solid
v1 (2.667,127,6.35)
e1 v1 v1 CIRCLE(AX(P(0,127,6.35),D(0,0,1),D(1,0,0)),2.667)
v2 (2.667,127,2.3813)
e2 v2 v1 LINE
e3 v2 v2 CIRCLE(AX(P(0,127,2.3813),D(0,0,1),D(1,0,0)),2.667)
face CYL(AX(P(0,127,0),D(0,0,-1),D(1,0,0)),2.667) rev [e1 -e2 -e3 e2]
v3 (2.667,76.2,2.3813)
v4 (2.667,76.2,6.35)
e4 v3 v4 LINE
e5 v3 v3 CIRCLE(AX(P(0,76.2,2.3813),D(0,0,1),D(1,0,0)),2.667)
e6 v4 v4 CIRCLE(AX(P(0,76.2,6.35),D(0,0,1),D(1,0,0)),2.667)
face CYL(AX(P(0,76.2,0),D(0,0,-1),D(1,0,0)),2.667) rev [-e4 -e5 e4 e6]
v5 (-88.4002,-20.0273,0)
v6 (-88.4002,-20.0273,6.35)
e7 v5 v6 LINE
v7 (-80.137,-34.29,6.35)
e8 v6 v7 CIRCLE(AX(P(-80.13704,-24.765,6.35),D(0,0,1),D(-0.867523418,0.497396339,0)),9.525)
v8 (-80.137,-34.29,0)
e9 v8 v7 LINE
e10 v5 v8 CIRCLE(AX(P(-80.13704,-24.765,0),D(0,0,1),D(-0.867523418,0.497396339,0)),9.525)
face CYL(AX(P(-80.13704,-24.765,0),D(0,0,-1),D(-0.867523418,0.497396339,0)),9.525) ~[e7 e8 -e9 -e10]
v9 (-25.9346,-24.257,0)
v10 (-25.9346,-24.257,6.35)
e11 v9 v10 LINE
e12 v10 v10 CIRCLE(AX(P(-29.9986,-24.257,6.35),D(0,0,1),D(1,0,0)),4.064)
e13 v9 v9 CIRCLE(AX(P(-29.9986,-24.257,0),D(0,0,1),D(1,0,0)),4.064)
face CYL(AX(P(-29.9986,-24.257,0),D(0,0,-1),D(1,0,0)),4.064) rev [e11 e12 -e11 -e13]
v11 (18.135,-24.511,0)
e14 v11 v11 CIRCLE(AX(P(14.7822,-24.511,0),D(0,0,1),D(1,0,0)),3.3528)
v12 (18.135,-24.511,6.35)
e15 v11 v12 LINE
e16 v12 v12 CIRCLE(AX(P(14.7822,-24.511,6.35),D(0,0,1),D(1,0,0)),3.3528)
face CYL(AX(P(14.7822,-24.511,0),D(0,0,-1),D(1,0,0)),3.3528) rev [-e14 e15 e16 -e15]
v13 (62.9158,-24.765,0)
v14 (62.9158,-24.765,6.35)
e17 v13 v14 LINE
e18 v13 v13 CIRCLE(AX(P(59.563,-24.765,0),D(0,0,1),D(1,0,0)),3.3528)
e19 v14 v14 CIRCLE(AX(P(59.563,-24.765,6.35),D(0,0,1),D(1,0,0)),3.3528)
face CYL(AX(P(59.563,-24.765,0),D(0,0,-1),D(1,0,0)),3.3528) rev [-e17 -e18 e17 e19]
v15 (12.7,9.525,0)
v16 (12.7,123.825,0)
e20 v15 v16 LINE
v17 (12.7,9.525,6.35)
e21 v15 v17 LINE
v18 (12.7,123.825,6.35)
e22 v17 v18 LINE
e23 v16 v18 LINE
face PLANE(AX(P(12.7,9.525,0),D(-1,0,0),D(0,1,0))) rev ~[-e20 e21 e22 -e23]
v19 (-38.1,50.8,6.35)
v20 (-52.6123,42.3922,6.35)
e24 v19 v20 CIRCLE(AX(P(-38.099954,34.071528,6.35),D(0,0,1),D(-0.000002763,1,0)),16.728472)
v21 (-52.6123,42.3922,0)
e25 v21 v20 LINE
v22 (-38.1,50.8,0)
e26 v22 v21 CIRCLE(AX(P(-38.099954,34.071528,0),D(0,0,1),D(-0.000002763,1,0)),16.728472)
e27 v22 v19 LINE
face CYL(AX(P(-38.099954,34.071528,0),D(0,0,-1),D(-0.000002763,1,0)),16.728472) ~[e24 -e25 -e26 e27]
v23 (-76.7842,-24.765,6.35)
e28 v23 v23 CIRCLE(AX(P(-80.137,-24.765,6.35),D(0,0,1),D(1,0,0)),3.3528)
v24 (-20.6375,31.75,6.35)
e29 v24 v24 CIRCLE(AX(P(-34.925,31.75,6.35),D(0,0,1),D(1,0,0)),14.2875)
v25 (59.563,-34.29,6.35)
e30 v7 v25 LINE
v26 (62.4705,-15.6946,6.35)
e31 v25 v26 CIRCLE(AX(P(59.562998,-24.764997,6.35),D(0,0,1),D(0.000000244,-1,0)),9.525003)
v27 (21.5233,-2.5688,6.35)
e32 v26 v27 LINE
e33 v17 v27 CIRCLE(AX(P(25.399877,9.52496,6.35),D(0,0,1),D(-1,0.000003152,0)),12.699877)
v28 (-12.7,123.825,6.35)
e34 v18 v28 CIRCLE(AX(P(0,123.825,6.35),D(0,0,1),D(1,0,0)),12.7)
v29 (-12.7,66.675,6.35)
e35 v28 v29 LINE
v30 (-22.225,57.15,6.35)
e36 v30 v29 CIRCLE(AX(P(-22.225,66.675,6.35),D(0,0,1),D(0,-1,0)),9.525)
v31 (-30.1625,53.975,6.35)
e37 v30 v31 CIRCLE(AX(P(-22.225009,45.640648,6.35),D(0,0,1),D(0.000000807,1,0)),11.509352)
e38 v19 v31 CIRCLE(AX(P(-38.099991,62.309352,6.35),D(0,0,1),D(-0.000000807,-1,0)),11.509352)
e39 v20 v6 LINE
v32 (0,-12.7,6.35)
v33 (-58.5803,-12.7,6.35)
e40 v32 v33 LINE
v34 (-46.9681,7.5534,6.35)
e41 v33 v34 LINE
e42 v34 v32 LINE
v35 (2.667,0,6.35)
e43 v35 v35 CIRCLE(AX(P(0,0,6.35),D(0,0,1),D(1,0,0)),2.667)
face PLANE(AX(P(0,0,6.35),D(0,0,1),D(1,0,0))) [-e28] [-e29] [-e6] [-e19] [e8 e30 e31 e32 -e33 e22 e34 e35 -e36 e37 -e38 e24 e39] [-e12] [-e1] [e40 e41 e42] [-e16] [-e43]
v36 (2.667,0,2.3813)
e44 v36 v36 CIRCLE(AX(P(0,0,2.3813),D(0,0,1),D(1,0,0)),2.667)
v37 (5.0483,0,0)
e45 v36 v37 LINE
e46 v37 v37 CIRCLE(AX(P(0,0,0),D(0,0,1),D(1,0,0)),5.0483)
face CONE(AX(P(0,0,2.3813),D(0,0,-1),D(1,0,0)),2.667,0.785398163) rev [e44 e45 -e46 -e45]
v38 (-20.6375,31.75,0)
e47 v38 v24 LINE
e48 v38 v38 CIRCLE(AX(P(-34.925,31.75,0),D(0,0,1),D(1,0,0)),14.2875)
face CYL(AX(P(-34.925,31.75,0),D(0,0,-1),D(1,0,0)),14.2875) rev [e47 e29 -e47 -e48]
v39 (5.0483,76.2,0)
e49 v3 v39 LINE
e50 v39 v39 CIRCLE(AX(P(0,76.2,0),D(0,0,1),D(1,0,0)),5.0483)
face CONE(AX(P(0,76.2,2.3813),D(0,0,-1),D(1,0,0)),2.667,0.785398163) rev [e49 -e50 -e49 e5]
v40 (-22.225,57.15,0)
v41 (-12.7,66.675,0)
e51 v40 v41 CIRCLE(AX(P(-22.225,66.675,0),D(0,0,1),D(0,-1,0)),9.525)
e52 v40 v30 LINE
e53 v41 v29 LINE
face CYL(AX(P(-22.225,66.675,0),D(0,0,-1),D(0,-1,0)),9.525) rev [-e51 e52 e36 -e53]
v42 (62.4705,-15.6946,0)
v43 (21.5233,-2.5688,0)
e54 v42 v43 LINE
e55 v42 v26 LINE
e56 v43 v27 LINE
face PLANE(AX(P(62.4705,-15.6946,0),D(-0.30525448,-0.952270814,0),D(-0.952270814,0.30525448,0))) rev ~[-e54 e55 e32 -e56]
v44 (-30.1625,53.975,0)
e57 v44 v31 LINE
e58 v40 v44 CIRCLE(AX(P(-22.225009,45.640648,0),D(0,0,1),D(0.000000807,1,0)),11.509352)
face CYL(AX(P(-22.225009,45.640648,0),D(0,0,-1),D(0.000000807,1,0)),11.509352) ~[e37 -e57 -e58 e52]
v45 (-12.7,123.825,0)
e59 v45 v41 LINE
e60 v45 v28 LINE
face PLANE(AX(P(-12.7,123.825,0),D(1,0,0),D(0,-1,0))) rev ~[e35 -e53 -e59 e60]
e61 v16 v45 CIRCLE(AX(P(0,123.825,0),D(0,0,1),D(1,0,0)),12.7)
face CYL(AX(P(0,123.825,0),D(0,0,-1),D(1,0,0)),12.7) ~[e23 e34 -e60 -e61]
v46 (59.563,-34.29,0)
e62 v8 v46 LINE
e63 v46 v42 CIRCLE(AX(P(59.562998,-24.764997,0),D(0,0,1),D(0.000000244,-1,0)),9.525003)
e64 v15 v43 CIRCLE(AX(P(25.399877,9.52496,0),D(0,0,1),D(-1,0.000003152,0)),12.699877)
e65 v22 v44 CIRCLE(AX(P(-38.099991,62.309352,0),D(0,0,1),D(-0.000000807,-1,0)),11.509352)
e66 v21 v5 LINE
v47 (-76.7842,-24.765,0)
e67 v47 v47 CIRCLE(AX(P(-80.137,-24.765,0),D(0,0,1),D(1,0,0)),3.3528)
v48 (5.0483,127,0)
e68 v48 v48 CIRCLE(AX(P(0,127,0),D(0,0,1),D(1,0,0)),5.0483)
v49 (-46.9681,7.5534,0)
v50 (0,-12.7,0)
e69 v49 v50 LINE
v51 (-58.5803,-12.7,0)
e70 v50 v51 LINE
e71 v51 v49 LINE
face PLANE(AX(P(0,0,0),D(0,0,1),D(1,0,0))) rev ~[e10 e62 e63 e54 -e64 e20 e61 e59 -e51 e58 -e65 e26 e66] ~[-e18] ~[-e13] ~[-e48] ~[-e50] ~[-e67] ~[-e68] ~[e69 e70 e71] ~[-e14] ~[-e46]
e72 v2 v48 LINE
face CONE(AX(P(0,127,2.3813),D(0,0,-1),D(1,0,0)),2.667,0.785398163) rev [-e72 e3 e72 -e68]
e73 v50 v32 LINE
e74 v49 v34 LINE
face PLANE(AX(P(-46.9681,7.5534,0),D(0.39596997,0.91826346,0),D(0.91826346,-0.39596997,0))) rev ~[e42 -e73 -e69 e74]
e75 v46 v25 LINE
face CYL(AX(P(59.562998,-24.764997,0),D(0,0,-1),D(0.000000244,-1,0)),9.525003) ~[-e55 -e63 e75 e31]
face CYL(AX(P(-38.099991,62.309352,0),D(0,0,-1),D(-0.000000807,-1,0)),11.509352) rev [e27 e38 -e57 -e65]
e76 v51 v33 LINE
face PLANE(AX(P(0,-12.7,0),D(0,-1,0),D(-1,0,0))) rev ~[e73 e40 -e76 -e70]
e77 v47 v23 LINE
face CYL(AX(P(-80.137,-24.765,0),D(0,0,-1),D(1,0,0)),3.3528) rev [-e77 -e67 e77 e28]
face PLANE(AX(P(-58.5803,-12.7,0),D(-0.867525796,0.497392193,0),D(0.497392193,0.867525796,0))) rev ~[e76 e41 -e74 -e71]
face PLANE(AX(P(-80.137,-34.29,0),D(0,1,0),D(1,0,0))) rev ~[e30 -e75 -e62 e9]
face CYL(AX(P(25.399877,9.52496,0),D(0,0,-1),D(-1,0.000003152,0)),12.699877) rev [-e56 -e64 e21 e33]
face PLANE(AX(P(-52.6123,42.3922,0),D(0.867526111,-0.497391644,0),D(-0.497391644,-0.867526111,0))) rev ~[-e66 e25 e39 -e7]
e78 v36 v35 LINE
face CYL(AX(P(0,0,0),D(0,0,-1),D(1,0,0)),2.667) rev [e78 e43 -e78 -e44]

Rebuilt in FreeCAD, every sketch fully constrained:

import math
import FreeCAD as App
import Part
import Sketcher
from FreeCAD import Vector
Q = App.Units.Quantity


def edges_at(feature, points):
    """Names of the edges that pass closest to the given points."""
    edges = feature.Shape.Edges
    near = lambda p: min(range(len(edges)), key=lambda i: edges[i].distToShape(Part.Vertex(*p))[0])
    return sorted({f"Edge{near(p) + 1}" for p in points})

doc = App.newDocument("Part")
body = doc.addObject("PartDesign::Body", "Body")

sketch1 = body.newObject("Sketcher::SketchObject", "Sketch")
sketch1.AttachmentSupport = (doc.getObject("XY_Plane"), [""])
sketch1.MapMode = "FlatFace"
sketch1.addGeometry([
    Part.ArcOfCircle(Part.Circle(Vector(25.4, 9.525, 0), Vector(0, 0, 1), 12.7), math.radians(180), math.radians(252.226608)),
    Part.LineSegment(Vector(12.7, 9.525, 0), Vector(12.7, 123.825, 0)),
    Part.ArcOfCircle(Part.Circle(Vector(0, 123.825, 0), Vector(0, 0, 1), 12.7), math.radians(0), math.radians(180)),
    Part.LineSegment(Vector(-12.7, 123.825, 0), Vector(-12.7, 66.675, 0)),
    Part.ArcOfCircle(Part.Circle(Vector(-22.225, 66.675, 0), Vector(0, 0, 1), 9.525), math.radians(-90), math.radians(0)),
    Part.ArcOfCircle(Part.Circle(Vector(-22.225, 45.6406, 0), Vector(0, 0, 1), 11.5094), math.radians(90), math.radians(133.602733)),
    Part.ArcOfCircle(Part.Circle(Vector(-38.1, 62.3094, 0), Vector(0, 0, 1), 11.5094), math.radians(-90), math.radians(-46.397267)),
    Part.ArcOfCircle(Part.Circle(Vector(-38.1, 34.0717, 0), Vector(0, 0, 1), 16.7283), math.radians(90), math.radians(150.172575)),
    Part.LineSegment(Vector(-52.6123, 42.3922, 0), Vector(-88.4002, -20.0273, 0)),
    Part.ArcOfCircle(Part.Circle(Vector(-80.137, -24.765, 0), Vector(0, 0, 1), 9.525034), math.radians(150.172227), math.radians(270)),
    Part.LineSegment(Vector(-80.137, -34.29, 0), Vector(59.563, -34.29, 0)),
    Part.ArcOfCircle(Part.Circle(Vector(59.563, -24.765, 0), Vector(0, 0, 1), 9.525), math.radians(-90), math.radians(72.226843)),
    Part.LineSegment(Vector(62.4705, -15.6946, 0), Vector(21.5233, -2.5688, 0)),
    Part.Circle(Vector(-80.137, -24.765, 0), Vector(0, 0, 1), 3.3528),
    Part.Circle(Vector(-29.9986, -24.257, 0), Vector(0, 0, 1), 4.064),
    Part.LineSegment(Vector(-46.9681, 7.5534, 0), Vector(0, -12.7, 0)),
    Part.LineSegment(Vector(0, -12.7, 0), Vector(-58.5803, -12.7, 0)),
    Part.LineSegment(Vector(-58.5803, -12.7, 0), Vector(-46.9681, 7.5534, 0)),
    Part.Circle(Vector(-34.925, 31.75, 0), Vector(0, 0, 1), 14.2875),
    Part.Circle(Vector(14.7822, -24.511, 0), Vector(0, 0, 1), 3.3528),
    Part.Circle(Vector(0, 0, 0), Vector(0, 0, 1), 2.667),
    Part.Circle(Vector(59.563, -24.765, 0), Vector(0, 0, 1), 3.3528),
    Part.Circle(Vector(0, 76.2, 0), Vector(0, 0, 1), 2.667),
    Part.Circle(Vector(0, 127, 0), Vector(0, 0, 1), 2.667),
], False)
sketch1.addConstraint([
    Sketcher.Constraint("Tangent", 0, 1, 1, 1),
    Sketcher.Constraint("Tangent", 1, 2, 2, 1),
    Sketcher.Constraint("Tangent", 2, 2, 3, 1),
    Sketcher.Constraint("Tangent", 3, 2, 4, 2),
    Sketcher.Constraint("Tangent", 4, 1, 5, 1),
    Sketcher.Constraint("Tangent", 5, 2, 6, 2),
    Sketcher.Constraint("Tangent", 6, 1, 7, 1),
    Sketcher.Constraint("Tangent", 7, 2, 8, 1),
    Sketcher.Constraint("Tangent", 8, 2, 9, 1),
    Sketcher.Constraint("Tangent", 9, 2, 10, 1),
    Sketcher.Constraint("Tangent", 10, 2, 11, 1),
    Sketcher.Constraint("Tangent", 11, 2, 12, 1),
    Sketcher.Constraint("Tangent", 12, 2, 0, 2),
    Sketcher.Constraint("Coincident", 15, 2, 16, 1),
    Sketcher.Constraint("Coincident", 16, 2, 17, 1),
    Sketcher.Constraint("Coincident", 17, 2, 15, 1),
    Sketcher.Constraint("Vertical", 1),
    Sketcher.Constraint("Vertical", 3),
    Sketcher.Constraint("Horizontal", 10),
    Sketcher.Constraint("Horizontal", 16),
    Sketcher.Constraint("Coincident", 20, 3, -1, 1),
    Sketcher.Constraint("Coincident", 13, 3, 9, 3),
    Sketcher.Constraint("Coincident", 21, 3, 11, 3),
    Sketcher.Constraint("Equal", 0, 2),
    Sketcher.Constraint("Equal", 5, 6),
    Sketcher.Constraint("Equal", 4, 9),
    Sketcher.Constraint("Equal", 9, 11),
    Sketcher.Constraint("Equal", 13, 19),
    Sketcher.Constraint("Equal", 19, 21),
    Sketcher.Constraint("Equal", 20, 22),
    Sketcher.Constraint("Equal", 22, 23),
    Sketcher.Constraint("PointOnObject", 2, 3, -2),
    Sketcher.Constraint("PointOnObject", 22, 3, -2),
    Sketcher.Constraint("PointOnObject", 23, 3, -2),
    Sketcher.Constraint("PointOnObject", 15, 2, -2),
    Sketcher.Constraint("Parallel", 8, 17),
    Sketcher.Constraint("Vertical", 4, 3, 5, 3),
    Sketcher.Constraint("Vertical", 6, 3, 7, 3),
    Sketcher.Constraint("Radius", 0, Q("0.5 in")),
    Sketcher.Constraint("Diameter", 20, Q("0.21 in")),
    Sketcher.Constraint("Diameter", 18, Q("1.125 in")),
    Sketcher.Constraint("DistanceY", -1, 1, 22, 3, Q("3 in")),
    Sketcher.Constraint("DistanceY", -1, 1, 23, 3, Q("5 in")),
    Sketcher.Constraint("Radius", 4, Q("0.375 in")),
    Sketcher.Constraint("DistanceX", 6, 3, 3, 2, Q("1 in")),
    Sketcher.Constraint("DistanceY", 3, 2, 3, 1, Q("2.25 in")),
    Sketcher.Constraint("DistanceY", 15, 2, -1, 1, Q("0.5 in")),
    Sketcher.Constraint("DistanceX", 18, 3, 5, 3, Q("0.5 in")),
    Sketcher.Constraint("DistanceY", 5, 2, 4, 3, Q("0.5 in")),
    Sketcher.Constraint("Diameter", 14, Q("0.32 in")),
    Sketcher.Constraint("DistanceY", -1, 1, 4, 1, Q("2.25 in")),
    Sketcher.Constraint("DistanceY", 0, 3, 4, 3, Q("2.25 in")),
    Sketcher.Constraint("DistanceY", 18, 3, 22, 3, Q("1.75 in")),
    Sketcher.Constraint("Diameter", 13, Q("0.264 in")),
    Sketcher.Constraint("DistanceX", 10, 1, 10, 2, Q("5.5 in")),
    Sketcher.Constraint("Radius", 7, Q("0.6586 in")),
    Sketcher.Constraint("DistanceY", 9, 3, 4, 3, Q("3.6 in")),
    Sketcher.Constraint("DistanceX", 9, 3, 5, 3, Q("2.28 in")),
    Sketcher.Constraint("DistanceY", 9, 3, 14, 3, Q("0.02 in")),
    Sketcher.Constraint("DistanceY", 19, 3, 0, 3, Q("1.34 in")),
    Sketcher.Constraint("DistanceX", 16, 2, 16, 1, Q("2.3063 in")),
    Sketcher.Constraint("DistanceX", 19, 3, 11, 2, Q("1.8775 in")),
    Sketcher.Constraint("DistanceX", 7, 2, 17, 2, Q("0.2222 in")),
    Sketcher.Constraint("DistanceX", 17, 2, 14, 3, Q("0.6681 in")),
])
pad1 = body.newObject("PartDesign::Pad", "Pad")
pad1.Profile = sketch1
pad1.Length = Q("0.25 in")
doc.recompute()

chamfer = body.newObject("PartDesign::Chamfer", "Chamfer")
chamfer.Base = (pad1, edges_at(pad1, [(-2.667, 127, 0), (-2.667, 76.2, 0), (-2.667, 0, 0)]))
chamfer.Size = Q("0.093752 in")

doc.recompute()
